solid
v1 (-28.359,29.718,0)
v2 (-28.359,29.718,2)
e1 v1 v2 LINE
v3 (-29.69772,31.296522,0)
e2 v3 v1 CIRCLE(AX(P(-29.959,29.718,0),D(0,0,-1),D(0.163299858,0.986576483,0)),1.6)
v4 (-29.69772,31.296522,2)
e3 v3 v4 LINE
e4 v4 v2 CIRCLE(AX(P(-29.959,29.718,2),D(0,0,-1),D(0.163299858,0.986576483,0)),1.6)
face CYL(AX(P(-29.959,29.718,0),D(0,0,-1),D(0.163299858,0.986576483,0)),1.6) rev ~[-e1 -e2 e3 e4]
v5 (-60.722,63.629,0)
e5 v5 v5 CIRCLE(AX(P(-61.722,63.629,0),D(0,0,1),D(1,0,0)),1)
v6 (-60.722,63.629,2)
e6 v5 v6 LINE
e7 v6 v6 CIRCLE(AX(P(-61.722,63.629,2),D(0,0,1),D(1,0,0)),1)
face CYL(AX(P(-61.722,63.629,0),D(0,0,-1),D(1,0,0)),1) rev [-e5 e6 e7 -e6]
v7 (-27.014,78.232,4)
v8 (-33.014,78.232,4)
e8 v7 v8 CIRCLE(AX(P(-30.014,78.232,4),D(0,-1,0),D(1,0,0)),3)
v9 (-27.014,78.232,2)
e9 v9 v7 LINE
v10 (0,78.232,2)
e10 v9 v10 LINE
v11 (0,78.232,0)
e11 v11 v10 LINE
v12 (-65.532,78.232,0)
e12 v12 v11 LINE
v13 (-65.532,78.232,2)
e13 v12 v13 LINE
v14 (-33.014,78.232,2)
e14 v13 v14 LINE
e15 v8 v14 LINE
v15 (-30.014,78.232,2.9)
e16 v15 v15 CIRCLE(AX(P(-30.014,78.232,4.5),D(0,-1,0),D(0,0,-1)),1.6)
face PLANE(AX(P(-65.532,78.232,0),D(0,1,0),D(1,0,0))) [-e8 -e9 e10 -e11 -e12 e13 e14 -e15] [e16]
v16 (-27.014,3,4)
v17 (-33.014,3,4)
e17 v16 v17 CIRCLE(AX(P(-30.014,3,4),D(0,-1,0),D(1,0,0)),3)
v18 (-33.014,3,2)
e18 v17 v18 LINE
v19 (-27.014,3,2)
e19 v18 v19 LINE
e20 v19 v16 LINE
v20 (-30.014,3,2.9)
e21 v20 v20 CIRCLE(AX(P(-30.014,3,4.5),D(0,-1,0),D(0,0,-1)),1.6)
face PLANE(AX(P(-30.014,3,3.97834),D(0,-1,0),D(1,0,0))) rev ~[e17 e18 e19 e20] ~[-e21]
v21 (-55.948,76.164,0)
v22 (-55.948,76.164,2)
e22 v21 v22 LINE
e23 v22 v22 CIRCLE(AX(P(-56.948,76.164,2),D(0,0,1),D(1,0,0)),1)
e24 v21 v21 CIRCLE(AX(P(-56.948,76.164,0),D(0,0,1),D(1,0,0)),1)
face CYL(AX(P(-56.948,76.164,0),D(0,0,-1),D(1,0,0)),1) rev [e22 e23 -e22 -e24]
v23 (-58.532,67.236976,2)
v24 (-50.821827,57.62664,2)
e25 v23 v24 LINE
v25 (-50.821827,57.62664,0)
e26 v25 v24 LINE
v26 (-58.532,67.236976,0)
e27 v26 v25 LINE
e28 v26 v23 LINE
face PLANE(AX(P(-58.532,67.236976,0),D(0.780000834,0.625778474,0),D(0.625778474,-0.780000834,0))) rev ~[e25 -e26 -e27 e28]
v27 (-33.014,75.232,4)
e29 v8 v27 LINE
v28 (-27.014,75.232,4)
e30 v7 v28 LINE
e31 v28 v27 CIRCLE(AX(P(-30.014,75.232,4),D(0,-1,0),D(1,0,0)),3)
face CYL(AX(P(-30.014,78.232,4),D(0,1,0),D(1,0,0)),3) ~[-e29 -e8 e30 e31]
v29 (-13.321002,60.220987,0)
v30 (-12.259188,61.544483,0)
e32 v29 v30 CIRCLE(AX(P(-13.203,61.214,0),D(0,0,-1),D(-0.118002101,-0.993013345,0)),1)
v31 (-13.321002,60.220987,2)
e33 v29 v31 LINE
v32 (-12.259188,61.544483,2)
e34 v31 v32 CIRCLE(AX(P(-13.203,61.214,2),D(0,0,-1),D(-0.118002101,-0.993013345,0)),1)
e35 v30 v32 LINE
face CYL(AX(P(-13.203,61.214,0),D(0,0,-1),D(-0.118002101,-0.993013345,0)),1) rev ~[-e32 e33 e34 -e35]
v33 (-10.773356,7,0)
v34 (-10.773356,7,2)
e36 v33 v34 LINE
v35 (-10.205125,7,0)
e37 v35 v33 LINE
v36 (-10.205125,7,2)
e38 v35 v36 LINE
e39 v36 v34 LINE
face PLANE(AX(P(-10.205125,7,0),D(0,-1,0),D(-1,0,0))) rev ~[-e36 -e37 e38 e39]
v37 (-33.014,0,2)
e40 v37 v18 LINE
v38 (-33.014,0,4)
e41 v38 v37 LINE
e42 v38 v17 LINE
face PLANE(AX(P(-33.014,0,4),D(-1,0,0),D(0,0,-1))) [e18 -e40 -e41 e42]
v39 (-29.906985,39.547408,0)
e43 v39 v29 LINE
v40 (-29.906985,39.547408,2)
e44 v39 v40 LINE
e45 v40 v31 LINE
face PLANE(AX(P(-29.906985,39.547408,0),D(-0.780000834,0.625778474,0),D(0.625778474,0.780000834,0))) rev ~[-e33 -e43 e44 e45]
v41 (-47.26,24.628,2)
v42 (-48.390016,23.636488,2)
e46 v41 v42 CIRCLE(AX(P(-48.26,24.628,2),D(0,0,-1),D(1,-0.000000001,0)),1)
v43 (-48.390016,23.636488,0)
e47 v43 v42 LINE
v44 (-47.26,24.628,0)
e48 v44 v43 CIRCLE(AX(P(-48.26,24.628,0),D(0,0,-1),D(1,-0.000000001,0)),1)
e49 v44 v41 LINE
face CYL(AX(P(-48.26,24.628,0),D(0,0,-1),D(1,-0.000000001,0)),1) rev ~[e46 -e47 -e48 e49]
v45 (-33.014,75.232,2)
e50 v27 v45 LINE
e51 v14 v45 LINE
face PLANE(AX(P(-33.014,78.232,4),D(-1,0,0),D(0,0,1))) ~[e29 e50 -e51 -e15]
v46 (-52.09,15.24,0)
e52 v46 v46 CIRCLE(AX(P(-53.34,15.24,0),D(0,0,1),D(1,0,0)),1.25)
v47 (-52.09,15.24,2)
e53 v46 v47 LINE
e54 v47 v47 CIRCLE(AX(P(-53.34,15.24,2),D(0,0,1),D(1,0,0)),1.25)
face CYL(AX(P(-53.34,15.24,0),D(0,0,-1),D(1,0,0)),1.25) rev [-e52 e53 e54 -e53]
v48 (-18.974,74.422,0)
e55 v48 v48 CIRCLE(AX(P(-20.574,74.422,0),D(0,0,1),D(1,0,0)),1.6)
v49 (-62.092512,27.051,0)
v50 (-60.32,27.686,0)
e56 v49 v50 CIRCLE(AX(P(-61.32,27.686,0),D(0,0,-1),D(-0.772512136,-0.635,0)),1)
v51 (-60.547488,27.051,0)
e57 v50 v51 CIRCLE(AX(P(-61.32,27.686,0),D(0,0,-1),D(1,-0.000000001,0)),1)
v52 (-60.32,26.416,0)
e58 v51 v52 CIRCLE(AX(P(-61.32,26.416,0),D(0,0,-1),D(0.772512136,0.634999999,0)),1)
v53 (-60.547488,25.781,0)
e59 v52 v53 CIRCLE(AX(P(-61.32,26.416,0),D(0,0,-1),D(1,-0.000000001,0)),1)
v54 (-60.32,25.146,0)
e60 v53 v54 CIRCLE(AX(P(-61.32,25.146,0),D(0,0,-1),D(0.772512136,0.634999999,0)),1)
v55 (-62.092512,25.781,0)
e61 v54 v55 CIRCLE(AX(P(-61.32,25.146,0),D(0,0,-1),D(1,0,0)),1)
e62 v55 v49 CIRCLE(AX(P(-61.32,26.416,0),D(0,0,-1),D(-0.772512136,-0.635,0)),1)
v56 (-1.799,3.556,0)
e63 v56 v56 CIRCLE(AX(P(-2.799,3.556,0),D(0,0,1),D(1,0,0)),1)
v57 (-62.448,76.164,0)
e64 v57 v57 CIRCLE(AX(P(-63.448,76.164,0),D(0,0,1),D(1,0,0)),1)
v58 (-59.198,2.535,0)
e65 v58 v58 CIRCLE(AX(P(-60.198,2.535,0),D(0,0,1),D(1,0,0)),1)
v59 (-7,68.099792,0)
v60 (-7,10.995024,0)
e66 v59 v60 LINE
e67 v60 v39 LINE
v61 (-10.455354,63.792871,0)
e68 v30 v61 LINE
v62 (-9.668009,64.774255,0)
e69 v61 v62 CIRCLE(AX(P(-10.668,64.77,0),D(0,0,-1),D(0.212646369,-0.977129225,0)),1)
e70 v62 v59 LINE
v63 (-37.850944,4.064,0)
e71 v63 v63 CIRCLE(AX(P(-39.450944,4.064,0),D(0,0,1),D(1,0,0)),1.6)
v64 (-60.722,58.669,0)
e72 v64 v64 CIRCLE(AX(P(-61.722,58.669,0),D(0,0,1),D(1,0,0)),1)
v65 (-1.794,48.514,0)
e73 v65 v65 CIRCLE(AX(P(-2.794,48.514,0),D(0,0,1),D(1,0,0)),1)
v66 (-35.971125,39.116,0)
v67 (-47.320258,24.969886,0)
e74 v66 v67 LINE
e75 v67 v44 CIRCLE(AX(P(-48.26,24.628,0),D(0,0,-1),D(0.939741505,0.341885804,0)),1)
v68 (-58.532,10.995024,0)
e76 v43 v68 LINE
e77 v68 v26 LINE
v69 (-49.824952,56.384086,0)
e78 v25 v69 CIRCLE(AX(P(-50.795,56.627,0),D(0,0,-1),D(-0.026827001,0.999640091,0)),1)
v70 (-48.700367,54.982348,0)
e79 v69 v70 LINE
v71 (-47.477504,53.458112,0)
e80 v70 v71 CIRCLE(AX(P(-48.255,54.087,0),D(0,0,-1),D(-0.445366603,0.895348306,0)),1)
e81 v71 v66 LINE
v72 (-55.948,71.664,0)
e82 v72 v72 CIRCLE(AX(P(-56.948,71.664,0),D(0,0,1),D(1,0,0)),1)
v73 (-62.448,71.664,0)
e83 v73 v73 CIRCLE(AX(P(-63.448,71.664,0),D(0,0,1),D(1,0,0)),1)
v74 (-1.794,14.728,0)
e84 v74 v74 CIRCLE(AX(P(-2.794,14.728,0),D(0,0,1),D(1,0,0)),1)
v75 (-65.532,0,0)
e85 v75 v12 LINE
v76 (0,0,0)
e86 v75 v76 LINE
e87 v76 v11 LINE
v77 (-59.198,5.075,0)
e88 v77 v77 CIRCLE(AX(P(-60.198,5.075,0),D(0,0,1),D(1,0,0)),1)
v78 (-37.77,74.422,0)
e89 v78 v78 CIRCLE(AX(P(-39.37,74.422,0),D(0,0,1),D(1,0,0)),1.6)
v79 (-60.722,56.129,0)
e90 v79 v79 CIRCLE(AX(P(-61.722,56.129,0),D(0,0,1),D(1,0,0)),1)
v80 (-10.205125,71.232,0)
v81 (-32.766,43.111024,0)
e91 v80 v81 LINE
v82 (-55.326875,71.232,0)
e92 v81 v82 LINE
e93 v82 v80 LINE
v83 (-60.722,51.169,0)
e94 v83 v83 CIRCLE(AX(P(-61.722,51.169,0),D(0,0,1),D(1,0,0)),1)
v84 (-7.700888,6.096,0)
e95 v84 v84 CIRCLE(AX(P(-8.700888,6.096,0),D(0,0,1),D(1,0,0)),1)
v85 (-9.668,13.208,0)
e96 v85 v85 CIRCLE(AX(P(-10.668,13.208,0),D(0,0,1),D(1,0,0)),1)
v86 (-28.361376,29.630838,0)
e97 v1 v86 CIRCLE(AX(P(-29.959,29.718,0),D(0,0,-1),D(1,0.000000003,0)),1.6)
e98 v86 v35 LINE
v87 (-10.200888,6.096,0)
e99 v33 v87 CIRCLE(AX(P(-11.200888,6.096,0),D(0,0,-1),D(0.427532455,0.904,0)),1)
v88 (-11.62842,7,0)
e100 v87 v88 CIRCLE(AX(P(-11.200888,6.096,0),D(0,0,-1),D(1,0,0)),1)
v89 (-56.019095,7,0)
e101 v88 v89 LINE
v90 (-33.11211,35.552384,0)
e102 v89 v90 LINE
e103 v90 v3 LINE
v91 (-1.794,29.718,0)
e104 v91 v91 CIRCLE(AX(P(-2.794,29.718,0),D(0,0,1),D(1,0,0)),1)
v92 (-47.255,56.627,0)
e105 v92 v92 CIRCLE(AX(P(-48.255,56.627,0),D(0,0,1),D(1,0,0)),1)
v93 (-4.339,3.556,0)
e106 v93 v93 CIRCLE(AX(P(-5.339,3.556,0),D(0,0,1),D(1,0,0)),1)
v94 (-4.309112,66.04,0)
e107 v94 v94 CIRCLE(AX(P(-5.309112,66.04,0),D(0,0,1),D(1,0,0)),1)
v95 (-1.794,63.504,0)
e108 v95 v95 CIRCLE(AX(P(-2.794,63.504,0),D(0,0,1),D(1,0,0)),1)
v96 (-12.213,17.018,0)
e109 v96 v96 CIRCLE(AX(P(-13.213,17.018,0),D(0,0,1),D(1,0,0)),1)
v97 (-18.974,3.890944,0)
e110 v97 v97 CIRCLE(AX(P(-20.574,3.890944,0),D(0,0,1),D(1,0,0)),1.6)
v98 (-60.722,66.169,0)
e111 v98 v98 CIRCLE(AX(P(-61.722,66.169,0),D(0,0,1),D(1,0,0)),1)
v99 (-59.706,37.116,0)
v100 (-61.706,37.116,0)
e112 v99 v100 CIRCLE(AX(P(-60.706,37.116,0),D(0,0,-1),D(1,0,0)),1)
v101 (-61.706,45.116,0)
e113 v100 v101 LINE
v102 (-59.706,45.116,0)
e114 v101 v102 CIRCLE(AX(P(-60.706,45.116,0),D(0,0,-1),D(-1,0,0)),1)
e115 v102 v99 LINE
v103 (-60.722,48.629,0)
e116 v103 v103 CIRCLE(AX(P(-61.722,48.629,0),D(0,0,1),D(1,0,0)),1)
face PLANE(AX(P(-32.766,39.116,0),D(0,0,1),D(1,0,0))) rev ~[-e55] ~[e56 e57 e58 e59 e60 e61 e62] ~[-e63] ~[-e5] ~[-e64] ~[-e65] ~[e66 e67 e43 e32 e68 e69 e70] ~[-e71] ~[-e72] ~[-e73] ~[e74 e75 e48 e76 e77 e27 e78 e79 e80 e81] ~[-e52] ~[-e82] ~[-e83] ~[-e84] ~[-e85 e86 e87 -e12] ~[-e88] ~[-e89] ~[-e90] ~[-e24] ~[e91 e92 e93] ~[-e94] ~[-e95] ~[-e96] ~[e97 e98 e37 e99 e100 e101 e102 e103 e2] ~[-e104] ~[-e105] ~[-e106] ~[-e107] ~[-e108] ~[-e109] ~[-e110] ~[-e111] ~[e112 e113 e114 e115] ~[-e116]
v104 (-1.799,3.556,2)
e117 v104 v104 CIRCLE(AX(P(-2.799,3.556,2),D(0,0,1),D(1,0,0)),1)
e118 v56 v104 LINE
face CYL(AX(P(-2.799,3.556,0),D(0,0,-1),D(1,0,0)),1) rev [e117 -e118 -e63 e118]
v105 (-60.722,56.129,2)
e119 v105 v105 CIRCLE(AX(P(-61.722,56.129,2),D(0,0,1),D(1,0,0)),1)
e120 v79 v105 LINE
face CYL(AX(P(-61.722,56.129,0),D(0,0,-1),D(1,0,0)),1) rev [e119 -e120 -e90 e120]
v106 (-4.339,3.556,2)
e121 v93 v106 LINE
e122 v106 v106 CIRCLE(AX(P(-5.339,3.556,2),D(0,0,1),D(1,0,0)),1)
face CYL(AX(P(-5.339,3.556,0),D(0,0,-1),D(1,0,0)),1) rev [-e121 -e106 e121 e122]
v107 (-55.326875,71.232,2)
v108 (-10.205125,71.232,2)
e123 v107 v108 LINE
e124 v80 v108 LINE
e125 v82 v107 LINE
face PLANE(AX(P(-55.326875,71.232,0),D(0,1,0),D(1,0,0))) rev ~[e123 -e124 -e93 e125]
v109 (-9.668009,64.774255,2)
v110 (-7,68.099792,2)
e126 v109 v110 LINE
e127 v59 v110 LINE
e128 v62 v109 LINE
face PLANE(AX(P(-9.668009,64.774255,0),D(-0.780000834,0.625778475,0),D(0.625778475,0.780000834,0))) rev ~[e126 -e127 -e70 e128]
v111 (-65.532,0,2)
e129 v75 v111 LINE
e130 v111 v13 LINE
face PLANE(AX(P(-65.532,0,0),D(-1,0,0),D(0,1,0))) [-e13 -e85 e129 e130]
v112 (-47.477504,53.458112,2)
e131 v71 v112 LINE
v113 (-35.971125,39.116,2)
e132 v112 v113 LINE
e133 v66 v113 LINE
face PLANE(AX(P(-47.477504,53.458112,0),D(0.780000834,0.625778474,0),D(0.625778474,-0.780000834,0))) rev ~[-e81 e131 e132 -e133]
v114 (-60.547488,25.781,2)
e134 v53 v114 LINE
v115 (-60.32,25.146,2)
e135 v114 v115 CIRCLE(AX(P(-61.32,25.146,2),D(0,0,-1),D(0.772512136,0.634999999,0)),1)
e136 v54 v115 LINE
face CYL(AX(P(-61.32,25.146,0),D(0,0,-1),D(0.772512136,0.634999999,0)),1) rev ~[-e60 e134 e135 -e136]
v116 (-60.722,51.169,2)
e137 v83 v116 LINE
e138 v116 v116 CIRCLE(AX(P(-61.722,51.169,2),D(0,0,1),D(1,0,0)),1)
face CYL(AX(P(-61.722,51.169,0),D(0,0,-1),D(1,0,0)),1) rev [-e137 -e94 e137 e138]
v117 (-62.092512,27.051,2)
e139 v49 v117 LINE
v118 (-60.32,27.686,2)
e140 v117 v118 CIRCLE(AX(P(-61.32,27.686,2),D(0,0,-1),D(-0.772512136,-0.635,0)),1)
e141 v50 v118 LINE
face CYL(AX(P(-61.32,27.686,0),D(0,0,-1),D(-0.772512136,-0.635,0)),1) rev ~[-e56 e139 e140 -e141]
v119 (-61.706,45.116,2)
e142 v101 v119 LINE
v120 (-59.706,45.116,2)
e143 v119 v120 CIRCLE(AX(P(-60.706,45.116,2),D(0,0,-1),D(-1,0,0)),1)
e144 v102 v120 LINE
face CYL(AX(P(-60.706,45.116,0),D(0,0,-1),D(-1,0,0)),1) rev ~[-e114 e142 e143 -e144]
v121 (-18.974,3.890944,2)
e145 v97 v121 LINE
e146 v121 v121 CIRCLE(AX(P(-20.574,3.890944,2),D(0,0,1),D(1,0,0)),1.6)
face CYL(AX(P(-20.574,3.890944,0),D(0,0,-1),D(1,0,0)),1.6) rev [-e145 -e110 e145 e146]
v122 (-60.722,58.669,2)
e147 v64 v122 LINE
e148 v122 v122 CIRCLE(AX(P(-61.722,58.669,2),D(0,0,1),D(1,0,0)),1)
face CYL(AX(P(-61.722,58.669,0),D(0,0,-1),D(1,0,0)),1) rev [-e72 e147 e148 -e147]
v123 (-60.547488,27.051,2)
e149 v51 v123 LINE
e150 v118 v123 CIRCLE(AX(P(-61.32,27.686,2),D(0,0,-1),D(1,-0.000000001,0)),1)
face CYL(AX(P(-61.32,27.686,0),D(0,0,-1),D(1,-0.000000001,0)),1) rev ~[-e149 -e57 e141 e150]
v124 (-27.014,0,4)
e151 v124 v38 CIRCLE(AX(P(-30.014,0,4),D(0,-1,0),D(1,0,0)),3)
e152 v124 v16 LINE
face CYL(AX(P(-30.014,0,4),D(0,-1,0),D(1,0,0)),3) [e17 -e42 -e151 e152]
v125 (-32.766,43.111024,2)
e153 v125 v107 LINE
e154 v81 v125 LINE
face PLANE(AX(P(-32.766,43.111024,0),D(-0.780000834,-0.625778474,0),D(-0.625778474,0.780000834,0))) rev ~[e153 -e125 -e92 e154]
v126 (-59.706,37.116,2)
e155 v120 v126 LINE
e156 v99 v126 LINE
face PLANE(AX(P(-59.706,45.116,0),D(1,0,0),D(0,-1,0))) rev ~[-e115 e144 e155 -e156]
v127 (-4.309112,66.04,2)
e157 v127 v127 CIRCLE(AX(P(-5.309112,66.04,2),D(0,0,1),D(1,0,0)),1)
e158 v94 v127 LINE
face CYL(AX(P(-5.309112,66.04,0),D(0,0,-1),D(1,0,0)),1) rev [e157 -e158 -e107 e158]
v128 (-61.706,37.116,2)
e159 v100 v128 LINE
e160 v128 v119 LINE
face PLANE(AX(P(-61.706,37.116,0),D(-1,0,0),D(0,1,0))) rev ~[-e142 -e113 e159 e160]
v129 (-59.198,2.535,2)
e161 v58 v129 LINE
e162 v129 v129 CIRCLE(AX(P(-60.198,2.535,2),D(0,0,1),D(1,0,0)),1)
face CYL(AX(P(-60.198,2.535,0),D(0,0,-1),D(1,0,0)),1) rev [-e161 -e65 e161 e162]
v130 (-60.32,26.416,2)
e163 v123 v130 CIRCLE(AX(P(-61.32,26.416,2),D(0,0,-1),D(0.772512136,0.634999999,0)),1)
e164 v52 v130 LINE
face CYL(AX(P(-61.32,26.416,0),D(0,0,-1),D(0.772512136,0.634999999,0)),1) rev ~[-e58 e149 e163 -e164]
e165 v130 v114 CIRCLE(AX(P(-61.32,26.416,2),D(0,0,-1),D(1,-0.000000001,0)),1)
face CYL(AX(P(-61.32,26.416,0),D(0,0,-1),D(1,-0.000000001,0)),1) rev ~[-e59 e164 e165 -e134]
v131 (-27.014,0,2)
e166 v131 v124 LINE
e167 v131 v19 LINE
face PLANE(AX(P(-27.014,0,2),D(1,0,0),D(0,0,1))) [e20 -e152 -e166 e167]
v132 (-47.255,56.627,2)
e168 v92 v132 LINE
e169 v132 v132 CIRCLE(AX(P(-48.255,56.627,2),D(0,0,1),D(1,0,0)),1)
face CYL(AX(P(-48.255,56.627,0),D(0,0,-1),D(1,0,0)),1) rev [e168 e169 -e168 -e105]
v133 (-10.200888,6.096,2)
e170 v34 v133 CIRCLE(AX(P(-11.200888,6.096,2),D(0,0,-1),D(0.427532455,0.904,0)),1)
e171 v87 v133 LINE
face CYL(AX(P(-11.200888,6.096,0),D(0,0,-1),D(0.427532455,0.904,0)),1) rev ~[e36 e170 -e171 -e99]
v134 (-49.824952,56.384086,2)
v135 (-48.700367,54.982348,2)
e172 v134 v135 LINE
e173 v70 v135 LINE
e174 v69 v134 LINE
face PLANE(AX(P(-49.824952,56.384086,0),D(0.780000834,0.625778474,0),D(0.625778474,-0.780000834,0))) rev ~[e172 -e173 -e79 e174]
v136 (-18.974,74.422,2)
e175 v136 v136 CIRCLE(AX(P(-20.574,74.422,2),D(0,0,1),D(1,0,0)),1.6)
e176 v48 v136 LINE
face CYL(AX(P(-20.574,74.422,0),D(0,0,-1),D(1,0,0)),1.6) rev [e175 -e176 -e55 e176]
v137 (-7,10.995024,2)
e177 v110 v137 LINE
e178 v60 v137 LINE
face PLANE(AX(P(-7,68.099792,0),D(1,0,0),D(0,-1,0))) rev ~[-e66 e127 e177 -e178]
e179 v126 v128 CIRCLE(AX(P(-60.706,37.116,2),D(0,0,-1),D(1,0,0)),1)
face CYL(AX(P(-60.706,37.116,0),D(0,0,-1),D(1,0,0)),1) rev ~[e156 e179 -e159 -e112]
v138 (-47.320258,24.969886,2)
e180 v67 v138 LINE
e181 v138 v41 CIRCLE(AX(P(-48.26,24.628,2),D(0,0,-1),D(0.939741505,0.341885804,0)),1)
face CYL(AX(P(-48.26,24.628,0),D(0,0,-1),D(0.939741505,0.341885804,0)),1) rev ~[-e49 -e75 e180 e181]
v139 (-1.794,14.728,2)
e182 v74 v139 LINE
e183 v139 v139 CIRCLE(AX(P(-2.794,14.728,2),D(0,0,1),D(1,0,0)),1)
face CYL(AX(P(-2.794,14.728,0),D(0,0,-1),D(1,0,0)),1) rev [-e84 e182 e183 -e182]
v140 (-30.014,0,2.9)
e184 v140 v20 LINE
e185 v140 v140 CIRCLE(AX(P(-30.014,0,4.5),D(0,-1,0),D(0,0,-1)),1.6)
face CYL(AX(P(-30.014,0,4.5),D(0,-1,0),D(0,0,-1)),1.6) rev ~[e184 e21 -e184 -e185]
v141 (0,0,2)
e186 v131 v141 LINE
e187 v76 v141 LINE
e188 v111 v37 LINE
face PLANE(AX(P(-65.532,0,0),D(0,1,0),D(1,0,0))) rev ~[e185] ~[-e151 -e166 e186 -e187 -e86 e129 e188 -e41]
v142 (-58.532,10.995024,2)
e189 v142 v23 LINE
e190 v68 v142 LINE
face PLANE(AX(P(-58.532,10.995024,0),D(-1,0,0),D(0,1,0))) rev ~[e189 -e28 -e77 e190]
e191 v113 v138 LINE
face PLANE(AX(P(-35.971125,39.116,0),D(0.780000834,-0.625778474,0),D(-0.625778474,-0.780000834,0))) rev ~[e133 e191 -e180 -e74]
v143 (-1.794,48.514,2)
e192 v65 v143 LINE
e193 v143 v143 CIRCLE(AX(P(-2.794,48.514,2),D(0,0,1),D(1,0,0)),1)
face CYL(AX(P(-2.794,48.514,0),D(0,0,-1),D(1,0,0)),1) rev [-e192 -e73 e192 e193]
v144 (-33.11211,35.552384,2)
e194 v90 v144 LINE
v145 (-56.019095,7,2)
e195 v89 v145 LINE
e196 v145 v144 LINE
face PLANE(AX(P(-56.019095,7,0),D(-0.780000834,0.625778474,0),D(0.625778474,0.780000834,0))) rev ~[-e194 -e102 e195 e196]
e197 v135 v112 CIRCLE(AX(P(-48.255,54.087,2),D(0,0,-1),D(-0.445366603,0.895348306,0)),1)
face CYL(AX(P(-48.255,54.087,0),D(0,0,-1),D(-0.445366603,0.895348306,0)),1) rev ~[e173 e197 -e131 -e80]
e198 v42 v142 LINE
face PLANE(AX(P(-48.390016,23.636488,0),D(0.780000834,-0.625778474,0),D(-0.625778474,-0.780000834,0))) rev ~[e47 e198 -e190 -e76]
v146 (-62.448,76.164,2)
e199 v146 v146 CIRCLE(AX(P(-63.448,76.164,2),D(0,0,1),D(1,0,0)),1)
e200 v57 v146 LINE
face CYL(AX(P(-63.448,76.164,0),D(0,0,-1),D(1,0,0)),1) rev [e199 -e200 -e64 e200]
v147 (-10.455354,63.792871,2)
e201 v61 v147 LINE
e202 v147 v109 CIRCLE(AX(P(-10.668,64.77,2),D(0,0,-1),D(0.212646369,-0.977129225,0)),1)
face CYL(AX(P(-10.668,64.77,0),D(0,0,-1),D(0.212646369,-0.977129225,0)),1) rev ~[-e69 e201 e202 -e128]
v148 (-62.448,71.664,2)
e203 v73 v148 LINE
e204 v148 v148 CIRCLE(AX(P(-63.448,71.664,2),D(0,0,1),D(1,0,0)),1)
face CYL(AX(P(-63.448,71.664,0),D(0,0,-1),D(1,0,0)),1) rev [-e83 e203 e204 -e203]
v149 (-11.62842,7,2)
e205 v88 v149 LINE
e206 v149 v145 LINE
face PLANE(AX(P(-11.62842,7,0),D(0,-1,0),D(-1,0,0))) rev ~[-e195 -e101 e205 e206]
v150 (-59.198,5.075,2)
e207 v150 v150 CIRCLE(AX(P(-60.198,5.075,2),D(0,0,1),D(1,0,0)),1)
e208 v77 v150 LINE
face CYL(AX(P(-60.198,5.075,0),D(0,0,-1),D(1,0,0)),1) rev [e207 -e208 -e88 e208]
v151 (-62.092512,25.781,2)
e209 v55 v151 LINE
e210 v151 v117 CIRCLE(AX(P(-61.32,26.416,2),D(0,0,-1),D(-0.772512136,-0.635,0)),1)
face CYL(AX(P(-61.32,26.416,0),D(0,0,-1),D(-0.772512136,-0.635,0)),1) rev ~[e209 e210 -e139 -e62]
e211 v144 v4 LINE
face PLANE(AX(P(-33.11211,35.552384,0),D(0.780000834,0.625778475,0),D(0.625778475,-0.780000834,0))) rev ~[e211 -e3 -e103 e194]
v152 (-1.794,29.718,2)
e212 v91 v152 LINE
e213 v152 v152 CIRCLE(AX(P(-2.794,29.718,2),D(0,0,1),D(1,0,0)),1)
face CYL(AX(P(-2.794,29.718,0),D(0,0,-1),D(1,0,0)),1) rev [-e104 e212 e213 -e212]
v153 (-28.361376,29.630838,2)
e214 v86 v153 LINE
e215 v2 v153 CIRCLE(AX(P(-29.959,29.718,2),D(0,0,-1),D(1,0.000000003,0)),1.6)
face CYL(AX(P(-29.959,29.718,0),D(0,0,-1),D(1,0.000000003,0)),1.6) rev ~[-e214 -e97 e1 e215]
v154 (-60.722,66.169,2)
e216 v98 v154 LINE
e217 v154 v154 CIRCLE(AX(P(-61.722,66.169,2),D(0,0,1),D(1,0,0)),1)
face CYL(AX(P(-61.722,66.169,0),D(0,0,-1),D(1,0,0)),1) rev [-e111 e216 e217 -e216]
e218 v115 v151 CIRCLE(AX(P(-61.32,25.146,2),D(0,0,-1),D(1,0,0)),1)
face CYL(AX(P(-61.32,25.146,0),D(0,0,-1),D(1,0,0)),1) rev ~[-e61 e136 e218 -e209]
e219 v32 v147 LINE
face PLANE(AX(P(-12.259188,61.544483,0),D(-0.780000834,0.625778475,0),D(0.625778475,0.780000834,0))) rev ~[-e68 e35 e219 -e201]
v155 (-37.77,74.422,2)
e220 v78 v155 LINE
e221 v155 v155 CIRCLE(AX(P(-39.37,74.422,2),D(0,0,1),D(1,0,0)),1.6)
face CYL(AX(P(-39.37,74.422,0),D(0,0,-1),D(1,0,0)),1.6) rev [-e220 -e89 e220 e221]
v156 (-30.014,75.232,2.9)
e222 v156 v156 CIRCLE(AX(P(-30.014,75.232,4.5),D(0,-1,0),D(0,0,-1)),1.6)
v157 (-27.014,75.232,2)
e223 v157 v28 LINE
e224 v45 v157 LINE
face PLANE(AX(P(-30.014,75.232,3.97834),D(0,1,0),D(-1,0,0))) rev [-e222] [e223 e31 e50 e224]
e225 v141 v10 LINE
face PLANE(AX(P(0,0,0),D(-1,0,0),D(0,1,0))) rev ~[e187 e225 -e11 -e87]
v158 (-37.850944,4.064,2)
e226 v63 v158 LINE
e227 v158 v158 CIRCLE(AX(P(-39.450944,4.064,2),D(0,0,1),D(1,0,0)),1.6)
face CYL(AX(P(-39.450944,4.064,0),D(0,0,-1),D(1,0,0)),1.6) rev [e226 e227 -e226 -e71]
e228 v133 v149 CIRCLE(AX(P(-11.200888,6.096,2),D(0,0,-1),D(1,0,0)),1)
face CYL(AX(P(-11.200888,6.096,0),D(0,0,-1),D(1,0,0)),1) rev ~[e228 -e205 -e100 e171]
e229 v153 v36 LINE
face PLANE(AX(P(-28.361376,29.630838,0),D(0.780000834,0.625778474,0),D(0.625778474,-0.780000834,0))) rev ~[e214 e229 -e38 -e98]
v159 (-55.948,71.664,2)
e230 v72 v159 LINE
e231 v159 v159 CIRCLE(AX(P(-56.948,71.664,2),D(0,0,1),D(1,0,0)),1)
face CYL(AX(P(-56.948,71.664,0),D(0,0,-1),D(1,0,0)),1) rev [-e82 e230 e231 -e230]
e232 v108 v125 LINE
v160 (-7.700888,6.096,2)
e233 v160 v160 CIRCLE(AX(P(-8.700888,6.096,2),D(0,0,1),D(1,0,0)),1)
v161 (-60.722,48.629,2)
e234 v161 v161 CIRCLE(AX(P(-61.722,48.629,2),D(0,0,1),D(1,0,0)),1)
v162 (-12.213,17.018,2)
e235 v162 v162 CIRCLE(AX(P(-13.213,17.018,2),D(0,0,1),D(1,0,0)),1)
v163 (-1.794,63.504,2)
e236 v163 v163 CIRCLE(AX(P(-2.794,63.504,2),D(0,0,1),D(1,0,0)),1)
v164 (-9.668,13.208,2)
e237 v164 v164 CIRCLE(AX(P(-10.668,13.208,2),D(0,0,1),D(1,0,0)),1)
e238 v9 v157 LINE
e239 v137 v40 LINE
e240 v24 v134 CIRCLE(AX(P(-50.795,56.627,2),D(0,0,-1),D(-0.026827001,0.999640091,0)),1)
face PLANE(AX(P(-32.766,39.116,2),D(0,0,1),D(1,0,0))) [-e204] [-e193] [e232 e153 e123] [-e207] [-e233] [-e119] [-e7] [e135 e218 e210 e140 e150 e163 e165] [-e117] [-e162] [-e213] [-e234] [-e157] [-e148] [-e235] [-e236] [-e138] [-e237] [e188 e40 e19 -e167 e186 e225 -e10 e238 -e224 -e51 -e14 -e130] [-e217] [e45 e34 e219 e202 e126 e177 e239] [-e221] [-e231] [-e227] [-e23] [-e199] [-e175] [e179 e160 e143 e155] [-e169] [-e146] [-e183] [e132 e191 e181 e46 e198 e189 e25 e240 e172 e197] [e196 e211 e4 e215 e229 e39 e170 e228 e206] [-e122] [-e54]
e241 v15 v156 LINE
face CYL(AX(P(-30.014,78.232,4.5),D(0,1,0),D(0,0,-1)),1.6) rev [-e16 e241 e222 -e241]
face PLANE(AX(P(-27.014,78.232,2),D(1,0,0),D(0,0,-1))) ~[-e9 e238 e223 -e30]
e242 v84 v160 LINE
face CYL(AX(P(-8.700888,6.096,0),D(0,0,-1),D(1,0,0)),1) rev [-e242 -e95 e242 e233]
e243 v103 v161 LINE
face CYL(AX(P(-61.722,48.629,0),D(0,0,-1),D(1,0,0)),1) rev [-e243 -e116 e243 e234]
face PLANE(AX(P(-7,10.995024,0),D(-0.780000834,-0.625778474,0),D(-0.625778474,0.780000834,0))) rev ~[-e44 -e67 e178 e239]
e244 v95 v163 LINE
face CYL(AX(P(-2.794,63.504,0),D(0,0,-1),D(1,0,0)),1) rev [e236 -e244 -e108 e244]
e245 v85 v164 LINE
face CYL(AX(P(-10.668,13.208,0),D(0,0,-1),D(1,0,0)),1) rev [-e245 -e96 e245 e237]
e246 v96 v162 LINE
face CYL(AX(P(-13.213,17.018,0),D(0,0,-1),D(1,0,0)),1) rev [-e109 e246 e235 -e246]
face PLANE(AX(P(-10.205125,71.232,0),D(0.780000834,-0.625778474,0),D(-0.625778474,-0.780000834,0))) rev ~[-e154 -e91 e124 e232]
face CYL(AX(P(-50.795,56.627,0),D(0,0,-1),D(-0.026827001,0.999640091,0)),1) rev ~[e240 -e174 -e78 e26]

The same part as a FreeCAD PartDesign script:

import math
import FreeCAD as App
import Part
import Sketcher
from FreeCAD import Vector
Q = App.Units.Quantity

doc = App.newDocument("Part")
params = doc.addObject("Spreadsheet::Sheet", "Params")
for row, (alias, value) in enumerate([
    ("sketch1_diameter", "2 mm"),
    ("sketch1_diameter2", "2.5 mm"),
    ("sketch1_diameter3", "3.2 mm"),
    ("sketch1_height", "8 mm"),
    ("pad1_length", "2 mm"),
    ("sketch2_radius", "3 mm"),
    ("sketch2_diameter", "3.2 mm"),
    ("sketch2_height", "2 mm"),
    ("pad2_length", "3 mm"),
], start=1):
    params.set(f"A{row}", alias)
    params.set(f"B{row}", "=" + value)
    params.setAlias(f"B{row}", alias)

body = doc.addObject("PartDesign::Body", "Body")

# Sketch on XY plane
sketch1 = body.newObject("Sketcher::SketchObject", "Sketch")
sketch1.AttachmentSupport = (doc.getObject("XY_Plane"), [""])
sketch1.MapMode = "FlatFace"
sketch1.addGeometry([
    Part.LineSegment(Vector(-65.53, 78.23, 0), Vector(-65.53, 0, 0)),  # 0
    Part.LineSegment(Vector(-65.53, 0, 0), Vector(0, 0, 0)),  # 1
    Part.LineSegment(Vector(0, 0, 0), Vector(0, 78.23, 0)),  # 2
    Part.LineSegment(Vector(0, 78.23, 0), Vector(-65.53, 78.23, 0)),  # 3
    Part.Circle(Vector(-60.2, 2.54, 0), Vector(0, 0, 1), 1),  # 4
    Part.Circle(Vector(-60.2, 5.08, 0), Vector(0, 0, 1), 1),  # 5
    Part.Circle(Vector(-53.34, 15.24, 0), Vector(0, 0, 1), 1.25),  # 6
    Part.Circle(Vector(-39.45, 4.06, 0), Vector(0, 0, 1), 1.6),  # 7
    Part.ArcOfCircle(Part.Circle(Vector(-61.32, 26.42, 0), Vector(0, 0, 1), 1), math.radians(-39), math.radians(0)),  # 8
    Part.ArcOfCircle(Part.Circle(Vector(-61.32, 25.15, 0), Vector(0, 0, 1), 1), math.radians(0), math.radians(39)),  # 9
    Part.ArcOfCircle(Part.Circle(Vector(-61.32, 25.15, 0), Vector(0, 0, 1), 1), math.radians(141), math.radians(360)),  # 10
    Part.ArcOfCircle(Part.Circle(Vector(-61.32, 26.42, 0), Vector(0, 0, 1), 1), math.radians(141), math.radians(219)),  # 11
    Part.ArcOfCircle(Part.Circle(Vector(-61.32, 27.69, 0), Vector(0, 0, 1), 1), math.radians(0), math.radians(219)),  # 12
    Part.ArcOfCircle(Part.Circle(Vector(-61.32, 27.69, 0), Vector(0, 0, 1), 1), math.radians(-39), math.radians(0)),  # 13
    Part.ArcOfCircle(Part.Circle(Vector(-61.32, 26.42, 0), Vector(0, 0, 1), 1), math.radians(0), math.radians(39)),  # 14
    Part.LineSegment(Vector(-48.39, 23.64, 0), Vector(-58.53, 11, 0)),  # 15
    Part.LineSegment(Vector(-58.53, 11, 0), Vector(-58.53, 67.24, 0)),  # 16
    Part.LineSegment(Vector(-58.53, 67.24, 0), Vector(-50.82, 57.63, 0)),  # 17
    Part.ArcOfCircle(Part.Circle(Vector(-50.8, 56.63, 0), Vector(0, 0, 1), 1), math.radians(-14), math.radians(92)),  # 18
    Part.LineSegment(Vector(-49.82, 56.38, 0), Vector(-48.7, 54.98, 0)),  # 19
    Part.ArcOfCircle(Part.Circle(Vector(-48.26, 54.09, 0), Vector(0, 0, 1), 1), math.radians(-39), math.radians(116)),  # 20
    Part.LineSegment(Vector(-47.48, 53.46, 0), Vector(-35.97, 39.12, 0)),  # 21
    Part.LineSegment(Vector(-35.97, 39.12, 0), Vector(-47.32, 24.97, 0)),  # 22
    Part.ArcOfCircle(Part.Circle(Vector(-48.26, 24.63, 0), Vector(0, 0, 1), 1), math.radians(0), math.radians(19.99)),  # 23
    Part.ArcOfCircle(Part.Circle(Vector(-48.26, 24.63, 0), Vector(0, 0, 1), 1), math.radians(-97), math.radians(0)),  # 24
    Part.Circle(Vector(-20.57, 3.89, 0), Vector(0, 0, 1), 1.6),  # 25
    Part.ArcOfCircle(Part.Circle(Vector(-11.2, 6.1, 0), Vector(0, 0, 1), 1), math.radians(115), math.radians(360)),  # 26
    Part.LineSegment(Vector(-11.63, 7, 0), Vector(-56.02, 7, 0)),  # 27
    Part.LineSegment(Vector(-56.02, 7, 0), Vector(-33.11, 35.55, 0)),  # 28
    Part.LineSegment(Vector(-33.11, 35.55, 0), Vector(-29.7, 31.3, 0)),  # 29
    Part.ArcOfCircle(Part.Circle(Vector(-29.96, 29.72, 0), Vector(0, 0, 1), 1.6), math.radians(0), math.radians(81)),  # 30
    Part.ArcOfCircle(Part.Circle(Vector(-29.96, 29.72, 0), Vector(0, 0, 1), 1.6), math.radians(-3.12), math.radians(0)),  # 31
    Part.LineSegment(Vector(-28.36, 29.63, 0), Vector(-10.21, 7, 0)),  # 32
    Part.LineSegment(Vector(-10.21, 7, 0), Vector(-10.77, 7, 0)),  # 33
    Part.ArcOfCircle(Part.Circle(Vector(-11.2, 6.1, 0), Vector(0, 0, 1), 1), math.radians(0), math.radians(65)),  # 34
    Part.Circle(Vector(-8.7, 6.1, 0), Vector(0, 0, 1), 1),  # 35
    Part.Circle(Vector(-5.34, 3.56, 0), Vector(0, 0, 1), 1),  # 36
    Part.Circle(Vector(-2.8, 3.56, 0), Vector(0, 0, 1), 1),  # 37
    Part.Circle(Vector(-10.67, 13.21, 0), Vector(0, 0, 1), 1),  # 38
    Part.Circle(Vector(-13.21, 17.02, 0), Vector(0, 0, 1), 1),  # 39
    Part.Circle(Vector(-2.79, 14.73, 0), Vector(0, 0, 1), 1),  # 40
    Part.Circle(Vector(-2.79, 29.72, 0), Vector(0, 0, 1), 1),  # 41
    Part.LineSegment(Vector(-61.71, 37.12, 0), Vector(-61.71, 45.12, 0)),  # 42
    Part.ArcOfCircle(Part.Circle(Vector(-60.71, 45.12, 0), Vector(0, 0, 1), 1), math.radians(0), math.radians(180)),  # 43
    Part.LineSegment(Vector(-59.71, 45.12, 0), Vector(-59.71, 37.12, 0)),  # 44
    Part.ArcOfCircle(Part.Circle(Vector(-60.71, 37.12, 0), Vector(0, 0, 1), 1), math.radians(180), math.radians(360)),  # 45
    Part.Circle(Vector(-61.72, 48.63, 0), Vector(0, 0, 1), 1),  # 46
    Part.Circle(Vector(-61.72, 51.17, 0), Vector(0, 0, 1), 1),  # 47
    Part.Circle(Vector(-61.72, 56.13, 0), Vector(0, 0, 1), 1),  # 48
    Part.Circle(Vector(-48.26, 56.63, 0), Vector(0, 0, 1), 1),  # 49
    Part.Circle(Vector(-61.72, 58.67, 0), Vector(0, 0, 1), 1),  # 50
    Part.Circle(Vector(-61.72, 63.63, 0), Vector(0, 0, 1), 1),  # 51
    Part.Circle(Vector(-61.72, 66.17, 0), Vector(0, 0, 1), 1),  # 52
    Part.Circle(Vector(-63.45, 71.66, 0), Vector(0, 0, 1), 1),  # 53
    Part.Circle(Vector(-56.95, 71.66, 0), Vector(0, 0, 1), 1),  # 54
    Part.Circle(Vector(-63.45, 76.16, 0), Vector(0, 0, 1), 1),  # 55
    Part.Circle(Vector(-56.95, 76.16, 0), Vector(0, 0, 1), 1),  # 56
    Part.Circle(Vector(-39.37, 74.42, 0), Vector(0, 0, 1), 1.6),  # 57
    Part.ArcOfCircle(Part.Circle(Vector(-10.67, 64.77, 0), Vector(0, 0, 1), 1), math.radians(0), math.radians(282)),  # 58
    Part.LineSegment(Vector(-9.67, 64.77, 0), Vector(-7, 68.1, 0)),  # 59
    Part.LineSegment(Vector(-7, 68.1, 0), Vector(-7, 11, 0)),  # 60
    Part.LineSegment(Vector(-7, 11, 0), Vector(-29.91, 39.55, 0)),  # 61
    Part.LineSegment(Vector(-29.91, 39.55, 0), Vector(-13.32, 60.22, 0)),  # 62
    Part.ArcOfCircle(Part.Circle(Vector(-13.2, 61.21, 0), Vector(0, 0, 1), 1), math.radians(19), math.radians(263)),  # 63
    Part.LineSegment(Vector(-12.26, 61.54, 0), Vector(-10.46, 63.79, 0)),  # 64
    Part.LineSegment(Vector(-10.21, 71.23, 0), Vector(-32.77, 43.11, 0)),  # 65
    Part.LineSegment(Vector(-32.77, 43.11, 0), Vector(-55.33, 71.23, 0)),  # 66
    Part.LineSegment(Vector(-55.33, 71.23, 0), Vector(-10.21, 71.23, 0)),  # 67
    Part.Circle(Vector(-2.79, 48.51, 0), Vector(0, 0, 1), 1),  # 68
    Part.Circle(Vector(-20.57, 74.42, 0), Vector(0, 0, 1), 1.6),  # 69
    Part.Circle(Vector(-2.79, 63.5, 0), Vector(0, 0, 1), 1),  # 70
    Part.Circle(Vector(-5.31, 66.04, 0), Vector(0, 0, 1), 1),  # 71
], False)
sketch1.addConstraint([
    Sketcher.Constraint("Coincident", 0, 2, 1, 1),
    Sketcher.Constraint("Coincident", 1, 2, 2, 1),
    Sketcher.Constraint("Coincident", 2, 2, 3, 1),
    Sketcher.Constraint("Coincident", 3, 2, 0, 1),
    Sketcher.Constraint("Coincident", 8, 1, 9, 2),
    Sketcher.Constraint("Tangent", 9, 1, 10, 2),
    Sketcher.Constraint("Coincident", 10, 1, 11, 2),
    Sketcher.Constraint("Coincident", 11, 1, 12, 2),
    Sketcher.Constraint("Tangent", 12, 1, 13, 2),
    Sketcher.Constraint("Coincident", 13, 1, 14, 2),
    Sketcher.Constraint("Tangent", 14, 1, 8, 2),
    Sketcher.Constraint("Coincident", 15, 2, 16, 1),
    Sketcher.Constraint("Coincident", 16, 2, 17, 1),
    Sketcher.Constraint("Coincident", 17, 2, 18, 2),
    Sketcher.Constraint("Coincident", 18, 1, 19, 1),
    Sketcher.Constraint("Coincident", 19, 2, 20, 2),
    Sketcher.Constraint("Coincident", 20, 1, 21, 1),
    Sketcher.Constraint("Coincident", 21, 2, 22, 1),
    Sketcher.Constraint("Coincident", 22, 2, 23, 2),
    Sketcher.Constraint("Tangent", 23, 1, 24, 2),
    Sketcher.Constraint("Coincident", 24, 1, 15, 1),
    Sketcher.Constraint("Coincident", 26, 1, 27, 1),
    Sketcher.Constraint("Coincident", 27, 2, 28, 1),
    Sketcher.Constraint("Coincident", 28, 2, 29, 1),
    Sketcher.Constraint("Coincident", 29, 2, 30, 2),
    Sketcher.Constraint("Tangent", 30, 1, 31, 2),
    Sketcher.Constraint("Coincident", 31, 1, 32, 1),
    Sketcher.Constraint("Coincident", 32, 2, 33, 1),
    Sketcher.Constraint("Coincident", 33, 2, 34, 2),
    Sketcher.Constraint("Tangent", 34, 1, 26, 2),
    Sketcher.Constraint("Tangent", 42, 2, 43, 2),
    Sketcher.Constraint("Tangent", 43, 1, 44, 1),
    Sketcher.Constraint("Tangent", 44, 2, 45, 2),
    Sketcher.Constraint("Tangent", 45, 1, 42, 1),
    Sketcher.Constraint("Coincident", 58, 1, 59, 1),
    Sketcher.Constraint("Coincident", 59, 2, 60, 1),
    Sketcher.Constraint("Coincident", 60, 2, 61, 1),
    Sketcher.Constraint("Coincident", 61, 2, 62, 1),
    Sketcher.Constraint("Coincident", 62, 2, 63, 2),
    Sketcher.Constraint("Coincident", 63, 1, 64, 1),
    Sketcher.Constraint("Coincident", 64, 2, 58, 2),
    Sketcher.Constraint("Coincident", 65, 2, 66, 1),
    Sketcher.Constraint("Coincident", 66, 2, 67, 1),
    Sketcher.Constraint("Coincident", 67, 2, 65, 1),
    Sketcher.Constraint("Vertical", 0),
    Sketcher.Constraint("Horizontal", 1),
    Sketcher.Constraint("Vertical", 2),
    Sketcher.Constraint("Horizontal", 3),
    Sketcher.Constraint("Vertical", 16),
    Sketcher.Constraint("Horizontal", 27),
    Sketcher.Constraint("Horizontal", 33),
    Sketcher.Constraint("Vertical", 42),
    Sketcher.Constraint("Vertical", 44),
    Sketcher.Constraint("Vertical", 60),
    Sketcher.Constraint("Horizontal", 67),
    Sketcher.Constraint("Coincident", 1, 2, -1, 1),
    Sketcher.Constraint("Coincident", 11, 3, 8, 3),
    Sketcher.Constraint("Equal", 4, 5),
    Sketcher.Constraint("Equal", 5, 8),
    Sketcher.Constraint("Equal", 8, 9),
    Sketcher.Constraint("Equal", 9, 10),
    Sketcher.Constraint("Equal", 10, 11),
    Sketcher.Constraint("Equal", 11, 12),
    Sketcher.Constraint("Equal", 12, 13),
    Sketcher.Constraint("Equal", 13, 14),
    Sketcher.Constraint("Equal", 14, 18),
    Sketcher.Constraint("Equal", 18, 20),
    Sketcher.Constraint("Equal", 20, 23),
    Sketcher.Constraint("Equal", 23, 24),
    Sketcher.Constraint("Equal", 7, 25),
    Sketcher.Constraint("Equal", 24, 26),
    Sketcher.Constraint("Equal", 25, 30),
    Sketcher.Constraint("Equal", 30, 31),
    Sketcher.Constraint("Equal", 26, 34),
    Sketcher.Constraint("Equal", 34, 35),
    Sketcher.Constraint("Equal", 35, 36),
    Sketcher.Constraint("Equal", 36, 37),
    Sketcher.Constraint("Equal", 37, 38),
    Sketcher.Constraint("Equal", 38, 39),
    Sketcher.Constraint("Equal", 39, 40),
    Sketcher.Constraint("Equal", 40, 41),
    Sketcher.Constraint("Equal", 41, 43),
    Sketcher.Constraint("Equal", 45, 46),
    Sketcher.Constraint("Equal", 46, 47),
    Sketcher.Constraint("Equal", 47, 48),
    Sketcher.Constraint("Equal", 48, 49),
    Sketcher.Constraint("Equal", 49, 50),
    Sketcher.Constraint("Equal", 50, 51),
    Sketcher.Constraint("Equal", 51, 52),
    Sketcher.Constraint("Equal", 52, 53),
    Sketcher.Constraint("Equal", 53, 54),
    Sketcher.Constraint("Equal", 54, 55),
    Sketcher.Constraint("Equal", 55, 56),
    Sketcher.Constraint("Equal", 31, 57),
    Sketcher.Constraint("Equal", 56, 58),
    Sketcher.Constraint("Equal", 58, 63),
    Sketcher.Constraint("Equal", 63, 68),
    Sketcher.Constraint("Equal", 57, 69),
    Sketcher.Constraint("Equal", 68, 70),
    Sketcher.Constraint("Equal", 70, 71),
    Sketcher.Constraint("Parallel", 17, 19),
    Sketcher.Constraint("Parallel", 19, 21),
    Sketcher.Constraint("Parallel", 15, 22),
    Sketcher.Constraint("Parallel", 22, 28),
    Sketcher.Constraint("Parallel", 21, 29),
    Sketcher.Constraint("Parallel", 29, 32),
    Sketcher.Constraint("Parallel", 28, 59),
    Sketcher.Constraint("Parallel", 32, 61),
    Sketcher.Constraint("Parallel", 59, 62),
    Sketcher.Constraint("Parallel", 62, 64),
    Sketcher.Constraint("Parallel", 64, 65),
    Sketcher.Constraint("Parallel", 61, 66),
    Sketcher.Constraint("Horizontal", 34, 3, 35, 3),
    Sketcher.Constraint("Horizontal", 36, 3, 37, 3),
    Sketcher.Constraint("Horizontal", 31, 3, 41, 3),
    Sketcher.Constraint("Horizontal", 18, 3, 49, 3),
    Sketcher.Constraint("Horizontal", 53, 3, 54, 3),
    Sketcher.Constraint("Horizontal", 55, 3, 56, 3),
    Sketcher.Constraint("Horizontal", 57, 3, 69, 3),
    Sketcher.Constraint("Horizontal", 10, 3, 9, 1),
    Sketcher.Constraint("Horizontal", 8, 1, 10, 1),
    Sketcher.Constraint("Horizontal", 13, 3, 12, 1),
    Sketcher.Constraint("Horizontal", 11, 1, 13, 1),
    Sketcher.Constraint("Horizontal", 11, 3, 14, 1),
    Sketcher.Constraint("Horizontal", 24, 3, 23, 1),
    Sketcher.Constraint("Horizontal", 41, 3, 30, 1),
    Sketcher.Constraint("Horizontal", 27, 2, 32, 2),
    Sketcher.Constraint("Horizontal", 35, 3, 34, 1),
    Sketcher.Constraint("Horizontal", 15, 2, 60, 2),
    Sketcher.Constraint("Vertical", 4, 3, 5, 3),
    Sketcher.Constraint("Vertical", 40, 3, 41, 3),
    Sketcher.Constraint("Vertical", 46, 3, 47, 3),
    Sketcher.Constraint("Vertical", 47, 3, 48, 3),
    Sketcher.Constraint("Vertical", 20, 3, 49, 3),
    Sketcher.Constraint("Vertical", 48, 3, 50, 3),
    Sketcher.Constraint("Vertical", 50, 3, 51, 3),
    Sketcher.Constraint("Vertical", 51, 3, 52, 3),
    Sketcher.Constraint("Vertical", 53, 3, 55, 3),
    Sketcher.Constraint("Vertical", 54, 3, 56, 3),
    Sketcher.Constraint("Vertical", 38, 3, 58, 3),
    Sketcher.Constraint("Vertical", 41, 3, 68, 3),
    Sketcher.Constraint("Vertical", 25, 3, 69, 3),
    Sketcher.Constraint("Vertical", 68, 3, 70, 3),
    Sketcher.Constraint("Vertical", 10, 1, 11, 1),
    Sketcher.Constraint("Vertical", 32, 2, 67, 2),
    Sketcher.Constraint("Equal", 28, 61),
    Sketcher.Constraint("Equal", 65, 66),
    Sketcher.Constraint("Diameter", 4, Q("2 mm")),
    Sketcher.Constraint("Diameter", 6, Q("2.5 mm")),
    Sketcher.Constraint("Diameter", 7, Q("3.2 mm")),
    Sketcher.Constraint("DistanceY", 42, 1, 42, 2, Q("8 mm")),
    Sketcher.Constraint("DistanceY", -1, 1, 26, 1, Q("7 mm")),
    Sketcher.Constraint("DistanceX", 59, 2, -1, 1, Q("7 mm")),
    Sketcher.Constraint("DistanceX", 1, 1, 1, 2, Q("65.532 mm")),
    Sketcher.Constraint("DistanceY", 0, 2, 0, 1, Q("78.232 mm")),
    Sketcher.Constraint("DistanceX", 6, 3, -1, 1, Q("53.34 mm")),
    Sketcher.Constraint("DistanceY", -1, 1, 6, 3, Q("15.24 mm")),
    Sketcher.Constraint("DistanceX", 8, 3, -1, 1, Q("61.32 mm")),
    Sketcher.Constraint("DistanceX", 23, 3, -1, 1, Q("48.26 mm")),
    Sketcher.Constraint("DistanceX", 57, 3, -1, 1, Q("39.37 mm")),
    Sketcher.Constraint("DistanceY", -1, 1, 58, 3, Q("64.77 mm")),
    Sketcher.Constraint("DistanceY", -1, 1, 71, 3, Q("66.04 mm")),
    Sketcher.Constraint("DistanceX", 4, 3, -1, 1, Q("60.198 mm")),
    Sketcher.Constraint("DistanceY", -1, 1, 4, 3, Q("2.535 mm")),
    Sketcher.Constraint("DistanceY", -1, 1, 5, 3, Q("5.075 mm")),
    Sketcher.Constraint("DistanceY", -1, 1, 7, 3, Q("4.064 mm")),
    Sketcher.Constraint("DistanceY", -1, 1, 8, 3, Q("26.416 mm")),
    Sketcher.Constraint("DistanceY", -1, 1, 9, 3, Q("25.146 mm")),
    Sketcher.Constraint("DistanceX", 18, 3, -1, 1, Q("50.795 mm")),
    Sketcher.Constraint("DistanceY", -1, 1, 18, 3, Q("56.627 mm")),
    Sketcher.Constraint("DistanceX", 20, 3, -1, 1, Q("48.255 mm")),
    Sketcher.Constraint("DistanceY", -1, 1, 20, 3, Q("54.087 mm")),
    Sketcher.Constraint("DistanceY", -1, 1, 23, 3, Q("24.628 mm")),
    Sketcher.Constraint("DistanceX", 25, 3, -1, 1, Q("20.574 mm")),
    Sketcher.Constraint("DistanceY", -1, 1, 26, 3, Q("6.096 mm")),
    Sketcher.Constraint("DistanceX", 30, 3, -1, 1, Q("29.959 mm")),
    Sketcher.Constraint("DistanceY", -1, 1, 30, 3, Q("29.718 mm")),
    Sketcher.Constraint("DistanceX", 36, 3, -1, 1, Q("5.339 mm")),
    Sketcher.Constraint("DistanceY", -1, 1, 36, 3, Q("3.556 mm")),
    Sketcher.Constraint("DistanceX", 37, 3, -1, 1, Q("2.799 mm")),
    Sketcher.Constraint("DistanceX", 38, 3, -1, 1, Q("10.668 mm")),
    Sketcher.Constraint("DistanceY", -1, 1, 38, 3, Q("13.208 mm")),
    Sketcher.Constraint("DistanceX", 39, 3, -1, 1, Q("13.213 mm")),
    Sketcher.Constraint("DistanceY", -1, 1, 39, 3, Q("17.018 mm")),
    Sketcher.Constraint("DistanceX", 40, 3, -1, 1, Q("2.794 mm")),
    Sketcher.Constraint("DistanceY", -1, 1, 40, 3, Q("14.728 mm")),
    Sketcher.Constraint("DistanceX", 43, 3, -1, 1, Q("60.706 mm")),
    Sketcher.Constraint("DistanceY", -1, 1, 43, 3, Q("45.116 mm")),
    Sketcher.Constraint("DistanceX", 46, 3, -1, 1, Q("61.722 mm")),
    Sketcher.Constraint("DistanceY", -1, 1, 46, 3, Q("48.629 mm")),
    Sketcher.Constraint("DistanceY", -1, 1, 47, 3, Q("51.169 mm")),
    Sketcher.Constraint("DistanceY", -1, 1, 48, 3, Q("56.129 mm")),
    Sketcher.Constraint("DistanceY", -1, 1, 50, 3, Q("58.669 mm")),
    Sketcher.Constraint("DistanceY", -1, 1, 51, 3, Q("63.629 mm")),
    Sketcher.Constraint("DistanceY", -1, 1, 52, 3, Q("66.169 mm")),
    Sketcher.Constraint("DistanceX", 53, 3, -1, 1, Q("63.448 mm")),
    Sketcher.Constraint("DistanceY", -1, 1, 53, 3, Q("71.664 mm")),
    Sketcher.Constraint("DistanceX", 54, 3, -1, 1, Q("56.948 mm")),
    Sketcher.Constraint("DistanceY", -1, 1, 55, 3, Q("76.164 mm")),
    Sketcher.Constraint("DistanceY", -1, 1, 57, 3, Q("74.422 mm")),
    Sketcher.Constraint("DistanceX", 63, 3, -1, 1, Q("13.203 mm")),
    Sketcher.Constraint("DistanceY", -1, 1, 63, 3, Q("61.214 mm")),
    Sketcher.Constraint("DistanceY", -1, 1, 68, 3, Q("48.514 mm")),
    Sketcher.Constraint("DistanceY", -1, 1, 70, 3, Q("63.504 mm")),
    Sketcher.Constraint("DistanceX", 15, 2, -1, 1, Q("58.532 mm")),
    Sketcher.Constraint("DistanceY", -1, 1, 21, 2, Q("39.116 mm")),
    Sketcher.Constraint("DistanceX", 65, 2, -1, 1, Q("32.766 mm")),
    Sketcher.Constraint("DistanceY", -1, 1, 66, 2, Q("71.232 mm")),
    Sketcher.Constraint("Distance", 19, Q("1.797098 mm")),
    Sketcher.Constraint("DistanceX", 33, 2, 33, 1, Q("0.568231 mm")),
    Sketcher.Constraint("DistanceX", 67, 1, 67, 2, Q("45.12175 mm")),
    Sketcher.Constraint("DistanceY", 60, 2, 60, 1, Q("57.104768 mm")),
    Sketcher.Constraint("Distance", 17, Q("12.32093 mm")),
    Sketcher.Constraint("Distance", 28, Q("36.605582 mm")),
    Sketcher.Constraint("Distance", 62, Q("26.50456 mm")),
    Sketcher.Constraint("DistanceX", 27, 2, 27, 1, Q("44.390674 mm")),
    Sketcher.Constraint("DistanceY", 16, 1, 16, 2, Q("56.241952 mm")),
    Sketcher.Constraint("DistanceX", 35, 3, -1, 1, Q("8.700888 mm")),
    Sketcher.Constraint("DistanceX", 71, 3, -1, 1, Q("5.309112 mm")),
    Sketcher.Constraint("DistanceX", 22, 2, -1, 1, Q("47.320258 mm")),
    Sketcher.Constraint("DistanceX", 63, 1, -1, 1, Q("12.259188 mm")),
    Sketcher.Constraint("DistanceX", 7, 3, -1, 1, Q("39.450944 mm")),
    Sketcher.Constraint("DistanceY", -1, 1, 25, 3, Q("3.890944 mm")),
])
sketch1.setExpression("Constraints[147]", "Params.sketch1_diameter")
sketch1.setExpression("Constraints[148]", "Params.sketch1_diameter2")
sketch1.setExpression("Constraints[149]", "Params.sketch1_diameter3")
sketch1.setExpression("Constraints[150]", "Params.sketch1_height")
pad1 = body.newObject("PartDesign::Pad", "Pad")
pad1.Profile = sketch1
pad1.setExpression("Length", "Params.pad1_length")

# Sketch on XZ plane
sketch2 = body.newObject("Sketcher::SketchObject", "Sketch001")
sketch2.AttachmentSupport = (doc.getObject("XZ_Plane"), [""])
sketch2.MapMode = "FlatFace"
sketch2.addGeometry([
    Part.LineSegment(Vector(-33, 2, 0), Vector(-27, 2, 0)),  # 0
    Part.LineSegment(Vector(-27, 2, 0), Vector(-27, 4, 0)),  # 1
    Part.ArcOfCircle(Part.Circle(Vector(-30, 4, 0), Vector(0, 0, 1), 3), math.radians(0), math.radians(180)),  # 2
    Part.LineSegment(Vector(-33, 4, 0), Vector(-33, 2, 0)),  # 3
    Part.Circle(Vector(-30, 4.5, 0), Vector(0, 0, 1), 1.6),  # 4
], False)
sketch2.addConstraint([
    Sketcher.Constraint("Coincident", 0, 2, 1, 1),
    Sketcher.Constraint("Tangent", 1, 2, 2, 1),
    Sketcher.Constraint("Tangent", 2, 2, 3, 1),
    Sketcher.Constraint("Coincident", 3, 2, 0, 1),
    Sketcher.Constraint("Horizontal", 0),
    Sketcher.Constraint("Vertical", 1),
    Sketcher.Constraint("Vertical", 3),
    Sketcher.Constraint("Vertical", 2, 3, 4, 3),
    Sketcher.Constraint("Radius", 2, Q("3 mm")),
    Sketcher.Constraint("Diameter", 4, Q("3.2 mm")),
    Sketcher.Constraint("DistanceY", 1, 1, 1, 2, Q("2 mm")),
    Sketcher.Constraint("DistanceY", -1, 1, 2, 3, Q("4 mm")),
    Sketcher.Constraint("DistanceY", -1, 1, 4, 3, Q("4.5 mm")),
    Sketcher.Constraint("DistanceX", 2, 3, -1, 1, Q("30.014 mm")),
])
sketch2.setExpression("Constraints[8]", "Params.sketch2_radius")
sketch2.setExpression("Constraints[9]", "Params.sketch2_diameter")
sketch2.setExpression("Constraints[10]", "Params.sketch2_height")
pad2 = body.newObject("PartDesign::Pad", "Pad001")
pad2.Profile = sketch2
pad2.setExpression("Length", "Params.pad2_length")
pad2.Reversed = True
doc.recompute()

datumplane = body.newObject("PartDesign::Plane", "DatumPlane")
datumplane.AttachmentSupport = (doc.getObject("XZ_Plane"), [""])
datumplane.MapMode = "FlatFace"
datumplane.AttachmentOffset = App.Placement(Vector(0, 0, -39.116), App.Rotation())
mirrored = body.newObject("PartDesign::Mirrored", "Mirrored")
mirrored.Originals = [pad2]
mirrored.MirrorPlane = (datumplane, [""])
body.Tip = mirrored

doc.recompute()
